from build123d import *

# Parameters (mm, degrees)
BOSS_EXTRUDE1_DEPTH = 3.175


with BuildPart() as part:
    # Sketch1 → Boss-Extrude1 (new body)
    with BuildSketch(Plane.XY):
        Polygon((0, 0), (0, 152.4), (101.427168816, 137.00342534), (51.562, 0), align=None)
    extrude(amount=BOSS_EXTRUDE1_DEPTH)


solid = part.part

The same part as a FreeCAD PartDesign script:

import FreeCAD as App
import Part
import Sketcher

V = App.Vector
Q = App.Units.Quantity


def add_polygon(sketch, points):
    """Adds a closed chain of lines whose ends are joined by coincident constraints."""
    first, n = sketch.GeometryCount, len(points)
    for a, b in zip(points, points[1:] + points[:1]):
        sketch.addGeometry(Part.LineSegment(App.Vector(*a, 0), App.Vector(*b, 0)), False)
    for i in range(n):
        sketch.addConstraint(Sketcher.Constraint("Coincident", first + i, 2, first + (i + 1) % n, 1))

doc = App.newDocument("Part")
body = doc.addObject("PartDesign::Body", "Body")

# Sketch on XY plane
sketch1 = body.newObject("Sketcher::SketchObject", "Sketch")
sketch1.AttachmentSupport = (doc.getObject("XY_Plane"), [""])
sketch1.MapMode = "FlatFace"
add_polygon(sketch1, [(0, 152), (0, 0), (52, 0), (101, 137)])  # lines 0-3
sketch1.addConstraint(Sketcher.Constraint("Vertical", 0))
sketch1.addConstraint(Sketcher.Constraint("Horizontal", 1))
sketch1.addConstraint(Sketcher.Constraint("Coincident", 0, 2, -1, 1))
sketch1.addConstraint(Sketcher.Constraint("DistanceY", 0, 2, 0, 1, Q("6 in")))
sketch1.addConstraint(Sketcher.Constraint("Angle", 2, Q("70 deg")))
sketch1.addConstraint(Sketcher.Constraint("DistanceX", 1, 1, 1, 2, Q("2.03 in")))
sketch1.addConstraint(Sketcher.Constraint("Distance", 2, Q("5.74 in")))
pad1 = body.newObject("PartDesign::Pad", "Pad")
pad1.Profile = sketch1
pad1.Length = Q("0.125 in")

doc.recompute()
